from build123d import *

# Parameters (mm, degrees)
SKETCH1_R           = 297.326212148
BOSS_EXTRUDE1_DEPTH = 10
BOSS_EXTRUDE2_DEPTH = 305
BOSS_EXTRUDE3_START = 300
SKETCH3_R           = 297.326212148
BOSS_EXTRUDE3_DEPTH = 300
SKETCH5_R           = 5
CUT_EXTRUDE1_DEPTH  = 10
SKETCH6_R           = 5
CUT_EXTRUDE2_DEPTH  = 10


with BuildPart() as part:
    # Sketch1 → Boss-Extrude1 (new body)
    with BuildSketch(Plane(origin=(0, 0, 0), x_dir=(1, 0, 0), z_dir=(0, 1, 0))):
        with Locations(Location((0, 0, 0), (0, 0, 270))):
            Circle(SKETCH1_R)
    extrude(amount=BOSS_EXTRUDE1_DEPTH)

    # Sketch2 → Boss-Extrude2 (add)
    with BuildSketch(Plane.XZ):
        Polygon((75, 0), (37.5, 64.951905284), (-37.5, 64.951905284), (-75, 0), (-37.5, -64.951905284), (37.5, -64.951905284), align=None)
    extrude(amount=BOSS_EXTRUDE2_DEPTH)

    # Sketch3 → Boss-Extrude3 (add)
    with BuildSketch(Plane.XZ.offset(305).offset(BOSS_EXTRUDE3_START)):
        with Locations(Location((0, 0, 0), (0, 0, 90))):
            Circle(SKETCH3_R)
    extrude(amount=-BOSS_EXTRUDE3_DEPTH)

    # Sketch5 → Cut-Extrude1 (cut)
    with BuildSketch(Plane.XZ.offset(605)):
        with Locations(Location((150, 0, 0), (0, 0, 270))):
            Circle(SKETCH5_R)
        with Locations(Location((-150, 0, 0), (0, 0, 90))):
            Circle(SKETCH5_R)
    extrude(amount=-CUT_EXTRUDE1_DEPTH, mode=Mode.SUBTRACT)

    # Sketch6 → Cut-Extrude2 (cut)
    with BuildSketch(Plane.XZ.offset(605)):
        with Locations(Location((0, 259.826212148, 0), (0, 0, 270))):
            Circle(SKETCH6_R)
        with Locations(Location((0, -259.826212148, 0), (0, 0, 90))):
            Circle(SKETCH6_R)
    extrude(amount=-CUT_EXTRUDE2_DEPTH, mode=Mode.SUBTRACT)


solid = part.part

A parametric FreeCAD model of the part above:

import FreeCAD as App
import Part
import Sketcher
Q = App.Units.Quantity

doc = App.newDocument("Part")
body = doc.addObject("PartDesign::Body", "Body")

sketch1 = body.newObject("Sketcher::SketchObject", "Sketch")
sketch1.AttachmentSupport = (doc.getObject("XZ_Plane"), [""])
sketch1.MapMode = "FlatFace"
sketch1.addGeometry(Part.Circle(App.Vector(0, 0, 0), App.Vector(0, 0, 1), 297), False)
sketch1.addConstraint([
    Sketcher.Constraint("Coincident", 0, 3, -1, 1),
    Sketcher.Constraint("Diameter", 0, Q("594.652424 mm")),
])
pad1 = body.newObject("PartDesign::Pad", "Pad")
pad1.Profile = sketch1
pad1.Length = 10
pad1.Reversed = True

sketch2 = body.newObject("Sketcher::SketchObject", "Sketch001")
sketch2.AttachmentSupport = (doc.getObject("XZ_Plane"), [""])
sketch2.MapMode = "FlatFace"
sketch2.addGeometry([
    Part.LineSegment(App.Vector(75, 0, 0), App.Vector(38, 65, 0)),
    Part.LineSegment(App.Vector(38, 65, 0), App.Vector(-38, 65, 0)),
    Part.LineSegment(App.Vector(-38, 65, 0), App.Vector(-75, 0, 0)),
    Part.LineSegment(App.Vector(-75, 0, 0), App.Vector(-38, -65, 0)),
    Part.LineSegment(App.Vector(-38, -65, 0), App.Vector(38, -65, 0)),
    Part.LineSegment(App.Vector(38, -65, 0), App.Vector(75, 0, 0)),
], False)
sketch2.addConstraint([
    Sketcher.Constraint("Coincident", 0, 2, 1, 1),
    Sketcher.Constraint("Coincident", 1, 2, 2, 1),
    Sketcher.Constraint("Coincident", 2, 2, 3, 1),
    Sketcher.Constraint("Coincident", 3, 2, 4, 1),
    Sketcher.Constraint("Coincident", 4, 2, 5, 1),
    Sketcher.Constraint("Coincident", 5, 2, 0, 1),
    Sketcher.Constraint("Horizontal", 1),
    Sketcher.Constraint("Horizontal", 4),
    Sketcher.Constraint("Symmetric", 0, 2, 3, 2, -1, 1),
    Sketcher.Constraint("Symmetric", 2, 2, 5, 2, -1, 1),
    Sketcher.Constraint("PointOnObject", 2, 2, -1),
    Sketcher.Constraint("Parallel", 2, 5),
    Sketcher.Constraint("Vertical", 1, 2, 3, 2),
    Sketcher.Constraint("DistanceX", 1, 2, 1, 1, Q("75 mm")),
    Sketcher.Constraint("Angle", 0, Q("120 deg")),
    Sketcher.Constraint("Distance", 0, Q("75 mm")),
])
pad2 = body.newObject("PartDesign::Pad", "Pad001")
pad2.Profile = sketch2
pad2.Length = 305

sketch3 = body.newObject("Sketcher::SketchObject", "Sketch002")
sketch3.AttachmentSupport = (doc.getObject("XZ_Plane"), [""])
sketch3.MapMode = "FlatFace"
sketch3.AttachmentOffset = App.Placement(App.Vector(0, 0, 605), App.Rotation())
sketch3.addGeometry(Part.Circle(App.Vector(0, 0, 0), App.Vector(0, 0, 1), 297), False)
sketch3.addConstraint([
    Sketcher.Constraint("Coincident", 0, 3, -1, 1),
    Sketcher.Constraint("Diameter", 0, Q("594.652424 mm")),
])
pad3 = body.newObject("PartDesign::Pad", "Pad002")
pad3.Profile = sketch3
pad3.Length = 300
pad3.Reversed = True

sketch4 = body.newObject("Sketcher::SketchObject", "Sketch003")
sketch4.AttachmentSupport = (doc.getObject("XZ_Plane"), [""])
sketch4.MapMode = "FlatFace"
sketch4.AttachmentOffset = App.Placement(App.Vector(0, 0, 605), App.Rotation())
sketch4.addGeometry([
    Part.Circle(App.Vector(150, 0, 0), App.Vector(0, 0, 1), 5),
    Part.Circle(App.Vector(-150, 0, 0), App.Vector(0, 0, 1), 5),
], False)
sketch4.addConstraint([
    Sketcher.Constraint("Equal", 0, 1),
    Sketcher.Constraint("Symmetric", 0, 3, 1, 3, -1, 1),
    Sketcher.Constraint("PointOnObject", 0, 3, -1),
    Sketcher.Constraint("Diameter", 0, Q("10 mm")),
    Sketcher.Constraint("DistanceX", -1, 1, 0, 3, Q("150 mm")),
])
pocket1 = body.newObject("PartDesign::Pocket", "Pocket")
pocket1.Profile = sketch4
pocket1.Length = 10

sketch5 = body.newObject("Sketcher::SketchObject", "Sketch004")
sketch5.AttachmentSupport = (doc.getObject("XZ_Plane"), [""])
sketch5.MapMode = "FlatFace"
sketch5.AttachmentOffset = App.Placement(App.Vector(0, 0, 605), App.Rotation())
sketch5.addGeometry([
    Part.Circle(App.Vector(0, 260, 0), App.Vector(0, 0, 1), 5),
    Part.Circle(App.Vector(0, -260, 0), App.Vector(0, 0, 1), 5),
], False)
sketch5.addConstraint([
    Sketcher.Constraint("Equal", 0, 1),
    Sketcher.Constraint("Symmetric", 0, 3, 1, 3, -1, 1),
    Sketcher.Constraint("PointOnObject", 0, 3, -2),
    Sketcher.Constraint("Diameter", 0, Q("10 mm")),
    Sketcher.Constraint("DistanceY", -1, 1, 0, 3, Q("259.826212 mm")),
])
pocket2 = body.newObject("PartDesign::Pocket", "Pocket001")
pocket2.Profile = sketch5
pocket2.Length = 10

doc.recompute()
